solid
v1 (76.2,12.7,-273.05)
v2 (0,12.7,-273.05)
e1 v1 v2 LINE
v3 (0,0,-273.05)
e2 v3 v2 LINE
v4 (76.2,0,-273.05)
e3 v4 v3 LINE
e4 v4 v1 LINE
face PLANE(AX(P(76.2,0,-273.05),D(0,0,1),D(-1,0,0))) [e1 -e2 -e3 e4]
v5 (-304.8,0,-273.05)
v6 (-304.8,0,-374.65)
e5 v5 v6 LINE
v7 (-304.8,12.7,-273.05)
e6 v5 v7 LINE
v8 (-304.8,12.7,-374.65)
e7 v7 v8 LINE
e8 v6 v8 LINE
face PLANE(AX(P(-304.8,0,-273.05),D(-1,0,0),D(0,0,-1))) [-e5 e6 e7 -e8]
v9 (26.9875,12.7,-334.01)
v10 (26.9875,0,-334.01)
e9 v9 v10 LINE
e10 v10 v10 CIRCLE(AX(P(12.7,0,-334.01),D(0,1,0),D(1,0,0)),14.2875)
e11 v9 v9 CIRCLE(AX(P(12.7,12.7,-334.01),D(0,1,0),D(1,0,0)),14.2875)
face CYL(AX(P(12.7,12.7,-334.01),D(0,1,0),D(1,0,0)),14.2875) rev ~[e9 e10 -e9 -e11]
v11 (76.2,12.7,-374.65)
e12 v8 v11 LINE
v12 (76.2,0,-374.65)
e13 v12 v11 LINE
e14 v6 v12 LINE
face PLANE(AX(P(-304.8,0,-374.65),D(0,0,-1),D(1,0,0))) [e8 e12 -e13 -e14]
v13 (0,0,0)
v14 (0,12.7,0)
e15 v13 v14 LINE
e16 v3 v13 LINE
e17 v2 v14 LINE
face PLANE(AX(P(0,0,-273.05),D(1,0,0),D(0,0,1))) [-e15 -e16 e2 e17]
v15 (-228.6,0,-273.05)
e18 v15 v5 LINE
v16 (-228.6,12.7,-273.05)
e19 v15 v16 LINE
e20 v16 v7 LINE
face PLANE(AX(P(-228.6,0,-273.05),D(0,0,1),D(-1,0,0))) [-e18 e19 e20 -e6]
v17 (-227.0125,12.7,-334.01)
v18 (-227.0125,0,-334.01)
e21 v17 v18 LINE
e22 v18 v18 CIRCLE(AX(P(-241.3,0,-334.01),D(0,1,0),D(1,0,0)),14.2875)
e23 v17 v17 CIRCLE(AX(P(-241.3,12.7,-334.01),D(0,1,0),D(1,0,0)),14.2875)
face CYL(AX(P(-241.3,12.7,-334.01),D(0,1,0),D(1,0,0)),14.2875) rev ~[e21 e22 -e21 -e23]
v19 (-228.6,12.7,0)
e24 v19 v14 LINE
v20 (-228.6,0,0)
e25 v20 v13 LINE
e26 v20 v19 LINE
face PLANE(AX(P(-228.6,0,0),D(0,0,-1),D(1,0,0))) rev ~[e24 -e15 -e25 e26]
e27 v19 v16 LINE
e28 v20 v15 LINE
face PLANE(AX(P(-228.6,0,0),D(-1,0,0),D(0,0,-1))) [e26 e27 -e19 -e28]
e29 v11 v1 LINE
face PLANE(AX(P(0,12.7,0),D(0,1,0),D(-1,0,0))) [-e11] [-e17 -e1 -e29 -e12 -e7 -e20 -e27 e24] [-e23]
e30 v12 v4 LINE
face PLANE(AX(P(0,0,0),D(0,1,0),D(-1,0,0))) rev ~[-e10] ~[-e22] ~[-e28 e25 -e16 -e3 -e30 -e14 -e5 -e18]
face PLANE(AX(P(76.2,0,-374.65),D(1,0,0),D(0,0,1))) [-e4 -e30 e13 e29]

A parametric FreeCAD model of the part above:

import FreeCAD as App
import Part
import Sketcher
from FreeCAD import Vector
Q = App.Units.Quantity


def add_polygon(sketch, points):
    """Adds a closed chain of lines whose ends are joined by coincident constraints."""
    first, n = sketch.GeometryCount, len(points)
    for a, b in zip(points, points[1:] + points[:1]):
        sketch.addGeometry(Part.LineSegment(App.Vector(*a, 0), App.Vector(*b, 0)), False)
    for i in range(n):
        sketch.addConstraint(Sketcher.Constraint("Coincident", first + i, 2, first + (i + 1) % n, 1))

doc = App.newDocument("Part")
body = doc.addObject("PartDesign::Body", "Body")

sketch1 = doc.addObject("Sketcher::SketchObject", "Sketch")
body.addObject(sketch1)
sketch1.AttachmentSupport = (doc.XZ_Plane, [""])
sketch1.MapMode = "FlatFace"
add_polygon(sketch1, [(-229, -273), (-229, 0), (0, 0), (0, -273), (76, -273), (76, -375), (-305, -375), (-305, -273)])
sketch1.addConstraint([
    Sketcher.Constraint("Vertical", 0),
    Sketcher.Constraint("Horizontal", 1),
    Sketcher.Constraint("Vertical", 2),
    Sketcher.Constraint("Horizontal", 3),
    Sketcher.Constraint("Vertical", 4),
    Sketcher.Constraint("Horizontal", 5),
    Sketcher.Constraint("Vertical", 6),
    Sketcher.Constraint("Horizontal", 7),
    Sketcher.Constraint("Coincident", 1, 2, -1, 1),
    Sketcher.Constraint("Horizontal", 3, 2, 6, 2),
    Sketcher.Constraint("Equal", 3, 7),
    Sketcher.Constraint("DistanceX", 1, 1, 1, 2, Q("9 in")),
    Sketcher.Constraint("DistanceX", 3, 1, 3, 2, Q("3 in")),
    Sketcher.Constraint("DistanceY", 4, 2, 4, 1, Q("4 in")),
    Sketcher.Constraint("DistanceY", 0, 1, 0, 2, Q("10.75 in")),
])
pad1 = doc.addObject("PartDesign::Pad", "Pad")
body.addObject(pad1)
pad1.Profile = sketch1
pad1.Length = Q("0.5 in")
pad1.Reversed = True

sketch2 = doc.addObject("Sketcher::SketchObject", "Sketch001")
body.addObject(sketch2)
sketch2.AttachmentSupport = (doc.XZ_Plane, [""])
sketch2.MapMode = "FlatFace"
sketch2.AttachmentOffset = App.Placement(Vector(0, 0, -0.5 * 25.4), App.Rotation())
sketch2.addGeometry([
    Part.Circle(Vector(-241, -334, 0), Vector(0, 0, 1), 14),
    Part.Circle(Vector(13, -334, 0), Vector(0, 0, 1), 14),
], False)
sketch2.addConstraint([
    Sketcher.Constraint("Equal", 0, 1),
    Sketcher.Constraint("Horizontal", 0, 3, 1, 3),
    Sketcher.Constraint("Diameter", 0, Q("1.125 in")),
    Sketcher.Constraint("DistanceX", 0, 3, 1, 3, Q("10 in")),
    Sketcher.Constraint("DistanceX", 0, 3, -1, 1, Q("9.5 in")),
    Sketcher.Constraint("DistanceY", 0, 3, -1, 1, Q("13.15 in")),
])
pocket1 = doc.addObject("PartDesign::Pocket", "Pocket")
body.addObject(pocket1)
pocket1.Profile = sketch2
pocket1.Type = "ThroughAll"
pocket1.Reversed = True

doc.recompute()
